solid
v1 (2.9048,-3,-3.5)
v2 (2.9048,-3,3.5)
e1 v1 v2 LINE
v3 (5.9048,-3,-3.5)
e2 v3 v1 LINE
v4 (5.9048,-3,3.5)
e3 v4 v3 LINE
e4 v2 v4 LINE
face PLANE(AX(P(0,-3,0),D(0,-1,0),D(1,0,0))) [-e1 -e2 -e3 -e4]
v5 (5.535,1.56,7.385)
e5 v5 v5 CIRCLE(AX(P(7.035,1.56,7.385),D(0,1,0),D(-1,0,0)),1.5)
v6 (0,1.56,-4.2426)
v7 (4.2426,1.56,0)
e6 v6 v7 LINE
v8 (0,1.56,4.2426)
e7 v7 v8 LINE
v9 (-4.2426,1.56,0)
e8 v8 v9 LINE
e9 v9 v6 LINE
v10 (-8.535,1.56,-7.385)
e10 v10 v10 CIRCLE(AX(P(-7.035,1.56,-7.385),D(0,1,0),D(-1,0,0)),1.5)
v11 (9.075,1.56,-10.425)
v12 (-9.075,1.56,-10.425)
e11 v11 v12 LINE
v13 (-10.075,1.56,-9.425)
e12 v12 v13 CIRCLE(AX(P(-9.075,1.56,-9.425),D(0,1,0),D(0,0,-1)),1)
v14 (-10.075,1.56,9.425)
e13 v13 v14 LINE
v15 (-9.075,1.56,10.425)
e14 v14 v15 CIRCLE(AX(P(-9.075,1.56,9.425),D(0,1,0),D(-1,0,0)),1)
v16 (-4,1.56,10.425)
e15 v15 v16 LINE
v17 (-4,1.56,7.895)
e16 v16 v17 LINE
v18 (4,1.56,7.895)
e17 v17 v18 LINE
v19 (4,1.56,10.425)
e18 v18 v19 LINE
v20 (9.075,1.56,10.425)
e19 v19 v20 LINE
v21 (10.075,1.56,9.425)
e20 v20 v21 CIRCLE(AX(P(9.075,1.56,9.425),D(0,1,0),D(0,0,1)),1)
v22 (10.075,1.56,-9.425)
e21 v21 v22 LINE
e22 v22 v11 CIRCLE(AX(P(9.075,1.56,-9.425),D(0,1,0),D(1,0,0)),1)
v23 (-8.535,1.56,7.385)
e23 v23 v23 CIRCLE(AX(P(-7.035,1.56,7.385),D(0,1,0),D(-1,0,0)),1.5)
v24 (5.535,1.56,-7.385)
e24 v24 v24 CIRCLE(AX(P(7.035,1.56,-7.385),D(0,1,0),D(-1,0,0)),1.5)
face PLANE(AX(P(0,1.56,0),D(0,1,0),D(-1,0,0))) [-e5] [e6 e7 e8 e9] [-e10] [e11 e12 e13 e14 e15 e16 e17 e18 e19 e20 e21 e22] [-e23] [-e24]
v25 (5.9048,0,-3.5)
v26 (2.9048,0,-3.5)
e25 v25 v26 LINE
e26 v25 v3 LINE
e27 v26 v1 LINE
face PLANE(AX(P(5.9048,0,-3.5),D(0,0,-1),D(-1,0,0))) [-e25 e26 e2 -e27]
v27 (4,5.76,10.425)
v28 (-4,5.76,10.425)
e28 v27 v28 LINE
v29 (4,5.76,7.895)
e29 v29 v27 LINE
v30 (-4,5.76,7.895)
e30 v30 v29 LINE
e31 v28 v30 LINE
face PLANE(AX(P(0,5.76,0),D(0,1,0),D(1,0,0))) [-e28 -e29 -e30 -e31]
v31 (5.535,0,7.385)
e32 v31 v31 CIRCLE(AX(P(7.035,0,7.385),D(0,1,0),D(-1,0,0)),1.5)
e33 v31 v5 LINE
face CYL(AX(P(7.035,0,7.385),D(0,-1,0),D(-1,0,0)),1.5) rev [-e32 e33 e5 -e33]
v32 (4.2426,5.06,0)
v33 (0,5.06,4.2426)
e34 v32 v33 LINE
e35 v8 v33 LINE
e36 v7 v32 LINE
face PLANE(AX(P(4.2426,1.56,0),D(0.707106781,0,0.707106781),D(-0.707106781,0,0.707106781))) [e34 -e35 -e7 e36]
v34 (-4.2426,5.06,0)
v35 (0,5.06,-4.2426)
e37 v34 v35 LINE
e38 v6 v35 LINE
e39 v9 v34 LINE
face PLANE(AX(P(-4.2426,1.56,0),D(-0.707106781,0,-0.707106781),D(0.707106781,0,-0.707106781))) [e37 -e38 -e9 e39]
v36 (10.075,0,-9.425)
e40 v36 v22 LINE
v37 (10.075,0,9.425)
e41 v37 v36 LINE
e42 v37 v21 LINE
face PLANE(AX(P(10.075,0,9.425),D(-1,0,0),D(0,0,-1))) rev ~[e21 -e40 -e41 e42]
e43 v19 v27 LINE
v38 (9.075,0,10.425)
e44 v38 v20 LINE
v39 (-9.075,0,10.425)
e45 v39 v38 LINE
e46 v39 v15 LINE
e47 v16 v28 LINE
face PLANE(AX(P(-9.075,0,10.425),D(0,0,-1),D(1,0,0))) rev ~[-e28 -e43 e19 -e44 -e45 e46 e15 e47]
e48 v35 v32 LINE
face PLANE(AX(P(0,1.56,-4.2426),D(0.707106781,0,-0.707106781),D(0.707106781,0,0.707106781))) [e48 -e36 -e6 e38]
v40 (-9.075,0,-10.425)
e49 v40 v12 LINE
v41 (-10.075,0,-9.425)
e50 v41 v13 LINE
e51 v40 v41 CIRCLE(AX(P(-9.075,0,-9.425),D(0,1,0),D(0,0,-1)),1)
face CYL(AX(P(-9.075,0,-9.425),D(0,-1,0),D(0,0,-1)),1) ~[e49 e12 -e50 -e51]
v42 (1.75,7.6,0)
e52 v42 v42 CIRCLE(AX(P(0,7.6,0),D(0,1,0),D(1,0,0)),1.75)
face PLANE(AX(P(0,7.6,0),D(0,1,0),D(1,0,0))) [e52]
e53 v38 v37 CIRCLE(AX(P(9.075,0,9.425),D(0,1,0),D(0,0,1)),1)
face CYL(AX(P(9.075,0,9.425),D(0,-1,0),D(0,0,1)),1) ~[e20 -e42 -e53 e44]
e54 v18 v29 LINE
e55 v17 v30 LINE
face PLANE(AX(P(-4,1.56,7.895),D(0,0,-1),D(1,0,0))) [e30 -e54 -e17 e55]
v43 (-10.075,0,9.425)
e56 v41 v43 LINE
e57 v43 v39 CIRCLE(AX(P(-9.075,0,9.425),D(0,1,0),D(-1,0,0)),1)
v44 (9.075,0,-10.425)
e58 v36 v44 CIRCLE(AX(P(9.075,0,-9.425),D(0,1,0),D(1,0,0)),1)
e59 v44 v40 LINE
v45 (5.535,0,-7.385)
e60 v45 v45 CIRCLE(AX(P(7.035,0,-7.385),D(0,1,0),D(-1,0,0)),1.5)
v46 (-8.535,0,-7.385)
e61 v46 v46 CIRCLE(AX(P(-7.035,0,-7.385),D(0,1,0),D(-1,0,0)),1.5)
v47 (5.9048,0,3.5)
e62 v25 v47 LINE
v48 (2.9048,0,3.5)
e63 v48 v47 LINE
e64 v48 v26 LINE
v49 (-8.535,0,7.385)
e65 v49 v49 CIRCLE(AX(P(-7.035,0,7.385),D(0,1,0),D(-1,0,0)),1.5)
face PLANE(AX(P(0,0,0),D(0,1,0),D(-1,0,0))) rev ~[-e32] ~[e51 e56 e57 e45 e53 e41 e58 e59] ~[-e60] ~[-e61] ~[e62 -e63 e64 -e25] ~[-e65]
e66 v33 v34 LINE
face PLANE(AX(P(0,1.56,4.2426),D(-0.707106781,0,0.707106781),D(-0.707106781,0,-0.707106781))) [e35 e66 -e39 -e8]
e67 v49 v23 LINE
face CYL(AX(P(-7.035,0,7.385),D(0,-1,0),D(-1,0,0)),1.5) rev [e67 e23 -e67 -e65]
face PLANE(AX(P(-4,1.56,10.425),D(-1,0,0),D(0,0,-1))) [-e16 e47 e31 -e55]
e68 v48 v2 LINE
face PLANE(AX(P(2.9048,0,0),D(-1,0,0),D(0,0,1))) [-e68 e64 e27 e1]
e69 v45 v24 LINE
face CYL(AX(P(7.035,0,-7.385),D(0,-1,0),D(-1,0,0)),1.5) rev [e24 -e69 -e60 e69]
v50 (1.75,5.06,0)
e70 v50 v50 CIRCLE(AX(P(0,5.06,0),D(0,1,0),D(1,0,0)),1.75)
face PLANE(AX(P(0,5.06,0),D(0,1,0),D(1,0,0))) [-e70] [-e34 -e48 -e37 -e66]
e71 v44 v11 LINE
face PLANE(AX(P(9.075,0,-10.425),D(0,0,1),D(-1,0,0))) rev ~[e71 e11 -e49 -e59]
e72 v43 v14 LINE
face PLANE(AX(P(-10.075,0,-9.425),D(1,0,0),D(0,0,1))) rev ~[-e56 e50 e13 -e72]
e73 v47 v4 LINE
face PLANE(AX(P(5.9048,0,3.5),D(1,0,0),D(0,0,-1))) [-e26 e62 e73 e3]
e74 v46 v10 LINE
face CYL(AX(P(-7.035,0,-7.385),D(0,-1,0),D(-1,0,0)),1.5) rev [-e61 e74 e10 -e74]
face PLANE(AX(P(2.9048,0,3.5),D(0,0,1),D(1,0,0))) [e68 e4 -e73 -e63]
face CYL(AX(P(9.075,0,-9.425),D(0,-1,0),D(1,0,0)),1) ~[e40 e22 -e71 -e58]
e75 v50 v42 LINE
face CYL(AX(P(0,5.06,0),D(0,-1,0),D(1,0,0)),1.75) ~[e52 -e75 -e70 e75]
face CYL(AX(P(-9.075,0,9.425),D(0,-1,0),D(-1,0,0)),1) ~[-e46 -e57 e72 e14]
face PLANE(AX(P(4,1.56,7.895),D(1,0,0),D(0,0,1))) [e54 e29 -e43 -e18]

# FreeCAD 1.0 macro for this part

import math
import FreeCAD as App
import Part
import Sketcher

V = App.Vector

doc = App.newDocument("Part")
body = doc.addObject("PartDesign::Body", "Body")

sketch1 = doc.addObject("Sketcher::SketchObject", "Sketch")
body.addObject(sketch1)
sketch1.AttachmentSupport = (doc.XZ_Plane, [""])
sketch1.MapMode = "FlatFace"
sketch1.addGeometry(Part.ArcOfCircle(Part.Circle(V(-9.1, 9.4, 0), V(0, 0, 1), 1), math.radians(90), math.radians(180)), False)
sketch1.addGeometry(Part.LineSegment(V(-9.1, 10.4, 0), V(9.1, 10.4, 0)), False)
sketch1.addGeometry(Part.ArcOfCircle(Part.Circle(V(9.1, 9.4, 0), V(0, 0, 1), 1), math.radians(0), math.radians(90)), False)
sketch1.addGeometry(Part.LineSegment(V(10.1, 9.4, 0), V(10.1, -9.4, 0)), False)
sketch1.addGeometry(Part.ArcOfCircle(Part.Circle(V(9.1, -9.4, 0), V(0, 0, 1), 1), math.radians(-90), math.radians(0)), False)
sketch1.addGeometry(Part.LineSegment(V(9.1, -10.4, 0), V(-9.1, -10.4, 0)), False)
sketch1.addGeometry(Part.ArcOfCircle(Part.Circle(V(-9.1, -9.4, 0), V(0, 0, 1), 1), math.radians(180), math.radians(270)), False)
sketch1.addGeometry(Part.LineSegment(V(-10.1, -9.4, 0), V(-10.1, 9.4, 0)), False)
sketch1.addGeometry(Part.Circle(V(7, -7.4, 0), V(0, 0, 1), 1.5), False)
sketch1.addGeometry(Part.Circle(V(-7, -7.4, 0), V(0, 0, 1), 1.5), False)
sketch1.addGeometry(Part.Circle(V(7, 7.4, 0), V(0, 0, 1), 1.5), False)
sketch1.addGeometry(Part.Circle(V(-7, 7.4, 0), V(0, 0, 1), 1.5), False)
sketch1.addConstraint(Sketcher.Constraint("Tangent", 0, 1, 1, 1))
sketch1.addConstraint(Sketcher.Constraint("Tangent", 1, 2, 2, 2))
sketch1.addConstraint(Sketcher.Constraint("Tangent", 2, 1, 3, 1))
sketch1.addConstraint(Sketcher.Constraint("Tangent", 3, 2, 4, 2))
sketch1.addConstraint(Sketcher.Constraint("Tangent", 4, 1, 5, 1))
sketch1.addConstraint(Sketcher.Constraint("Tangent", 5, 2, 6, 2))
sketch1.addConstraint(Sketcher.Constraint("Tangent", 6, 1, 7, 1))
sketch1.addConstraint(Sketcher.Constraint("Tangent", 7, 2, 0, 2))
sketch1.addConstraint(Sketcher.Constraint("Horizontal", 1))
sketch1.addConstraint(Sketcher.Constraint("Vertical", 3))
sketch1.addConstraint(Sketcher.Constraint("Horizontal", 5))
sketch1.addConstraint(Sketcher.Constraint("Vertical", 7))
sketch1.addConstraint(Sketcher.Constraint("Equal", 0, 2))
sketch1.addConstraint(Sketcher.Constraint("Equal", 2, 4))
sketch1.addConstraint(Sketcher.Constraint("Equal", 4, 6))
sketch1.addConstraint(Sketcher.Constraint("Equal", 8, 9))
sketch1.addConstraint(Sketcher.Constraint("Equal", 9, 10))
sketch1.addConstraint(Sketcher.Constraint("Equal", 10, 11))
sketch1.addConstraint(Sketcher.Constraint("Symmetric", 0, 3, 4, 3, -1, 1))
sketch1.addConstraint(Sketcher.Constraint("Symmetric", 9, 3, 10, 3, -1, 1))
sketch1.addConstraint(Sketcher.Constraint("Symmetric", 8, 3, 11, 3, -1, 1))
sketch1.addConstraint(Sketcher.Constraint("Symmetric", 8, 3, 9, 3, -2))
sketch1.addConstraint(Sketcher.Constraint("Diameter", 8, 3.0))
sketch1.addConstraint(Sketcher.Constraint("Radius", 0, 1.0))
sketch1.addConstraint(Sketcher.Constraint("DistanceY", 11, 3, 0, 1, 3.04))
sketch1.addConstraint(Sketcher.Constraint("DistanceX", 10, 3, 2, 1, 3.04))
sketch1.addConstraint(Sketcher.Constraint("DistanceX", 1, 1, 1, 2, 18.15))
sketch1.addConstraint(Sketcher.Constraint("DistanceY", 3, 2, 3, 1, 18.85))
pad1 = doc.addObject("PartDesign::Pad", "Pad")
body.addObject(pad1)
pad1.Profile = sketch1
pad1.Length = 1.56
pad1.Reversed = True

sketch2 = doc.addObject("Sketcher::SketchObject", "Sketch001")
body.addObject(sketch2)
sketch2.AttachmentSupport = (doc.XZ_Plane, [""])
sketch2.MapMode = "FlatFace"
sketch2.AttachmentOffset = App.Placement(V(0, 0, -1.56), App.Rotation())
sketch2.addGeometry(Part.LineSegment(V(0, -4, 0), V(-4, 0, 0)), False)
sketch2.addGeometry(Part.LineSegment(V(-4, 0, 0), V(0, 4, 0)), False)
sketch2.addGeometry(Part.LineSegment(V(0, 4, 0), V(4, 0, 0)), False)
sketch2.addGeometry(Part.LineSegment(V(4, 0, 0), V(0, -4, 0)), False)
sketch2.addConstraint(Sketcher.Constraint("Coincident", 0, 2, 1, 1))
sketch2.addConstraint(Sketcher.Constraint("Coincident", 1, 2, 2, 1))
sketch2.addConstraint(Sketcher.Constraint("Coincident", 2, 2, 3, 1))
sketch2.addConstraint(Sketcher.Constraint("Coincident", 3, 2, 0, 1))
sketch2.addConstraint(Sketcher.Constraint("Symmetric", 0, 2, 2, 2, -1, 1))
sketch2.addConstraint(Sketcher.Constraint("Symmetric", 1, 2, 3, 2, -1, 1))
sketch2.addConstraint(Sketcher.Constraint("PointOnObject", 0, 2, -1))
sketch2.addConstraint(Sketcher.Constraint("PointOnObject", 1, 2, -2))
sketch2.addConstraint(Sketcher.Constraint("Perpendicular", 0, 1))
sketch2.addConstraint(Sketcher.Constraint("Distance", 0, 6.0))
pad2 = doc.addObject("PartDesign::Pad", "Pad001")
body.addObject(pad2)
pad2.Profile = sketch2
pad2.Length = 3.5
pad2.Reversed = True

sketch3 = doc.addObject("Sketcher::SketchObject", "Sketch002")
body.addObject(sketch3)
sketch3.AttachmentSupport = (doc.XZ_Plane, [""])
sketch3.MapMode = "FlatFace"
sketch3.AttachmentOffset = App.Placement(V(0, 0, -1.56), App.Rotation())
sketch3.addGeometry(Part.LineSegment(V(-4, 10.4, 0), V(4, 10.4, 0)), False)
sketch3.addGeometry(Part.LineSegment(V(4, 10.4, 0), V(4, 7.9, 0)), False)
sketch3.addGeometry(Part.LineSegment(V(4, 7.9, 0), V(-4, 7.9, 0)), False)
sketch3.addGeometry(Part.LineSegment(V(-4, 7.9, 0), V(-4, 10.4, 0)), False)
sketch3.addConstraint(Sketcher.Constraint("Coincident", 0, 2, 1, 1))
sketch3.addConstraint(Sketcher.Constraint("Coincident", 1, 2, 2, 1))
sketch3.addConstraint(Sketcher.Constraint("Coincident", 2, 2, 3, 1))
sketch3.addConstraint(Sketcher.Constraint("Coincident", 3, 2, 0, 1))
sketch3.addConstraint(Sketcher.Constraint("Horizontal", 0))
sketch3.addConstraint(Sketcher.Constraint("Vertical", 1))
sketch3.addConstraint(Sketcher.Constraint("Horizontal", 2))
sketch3.addConstraint(Sketcher.Constraint("Vertical", 3))
sketch3.addConstraint(Sketcher.Constraint("DistanceX", 0, 1, 0, 2, 8.0))
sketch3.addConstraint(Sketcher.Constraint("DistanceY", 1, 2, 1, 1, 2.53))
sketch3.addConstraint(Sketcher.Constraint("DistanceX", -1, 1, 0, 2, 4.0))
sketch3.addConstraint(Sketcher.Constraint("DistanceY", -1, 1, 0, 2, 10.425))
pad3 = doc.addObject("PartDesign::Pad", "Pad002")
body.addObject(pad3)
pad3.Profile = sketch3
pad3.Length = 4.2
pad3.Reversed = True

sketch4 = doc.addObject("Sketcher::SketchObject", "Sketch003")
body.addObject(sketch4)
sketch4.AttachmentSupport = (doc.XZ_Plane, [""])
sketch4.MapMode = "FlatFace"
sketch4.addGeometry(Part.LineSegment(V(5.9, 3.5, 0), V(2.9, 3.5, 0)), False)
sketch4.addGeometry(Part.LineSegment(V(2.9, 3.5, 0), V(2.9, -3.5, 0)), False)
sketch4.addGeometry(Part.LineSegment(V(2.9, -3.5, 0), V(5.9, -3.5, 0)), False)
sketch4.addGeometry(Part.LineSegment(V(5.9, -3.5, 0), V(5.9, 3.5, 0)), False)
sketch4.addConstraint(Sketcher.Constraint("Coincident", 0, 2, 1, 1))
sketch4.addConstraint(Sketcher.Constraint("Coincident", 1, 2, 2, 1))
sketch4.addConstraint(Sketcher.Constraint("Coincident", 2, 2, 3, 1))
sketch4.addConstraint(Sketcher.Constraint("Coincident", 3, 2, 0, 1))
sketch4.addConstraint(Sketcher.Constraint("Horizontal", 0))
sketch4.addConstraint(Sketcher.Constraint("Vertical", 1))
sketch4.addConstraint(Sketcher.Constraint("Horizontal", 2))
sketch4.addConstraint(Sketcher.Constraint("Vertical", 3))
sketch4.addConstraint(Sketcher.Constraint("DistanceX", 0, 2, 0, 1, 3.0))
sketch4.addConstraint(Sketcher.Constraint("DistanceY", 1, 2, 1, 1, 7.0))
sketch4.addConstraint(Sketcher.Constraint("DistanceY", -1, 1, 0, 2, 3.5))
sketch4.addConstraint(Sketcher.Constraint("DistanceX", -1, 1, 0, 2, 2.9048))
pad4 = doc.addObject("PartDesign::Pad", "Pad003")
body.addObject(pad4)
pad4.Profile = sketch4
pad4.Length = 3

sketch5 = doc.addObject("Sketcher::SketchObject", "Sketch004")
body.addObject(sketch5)
sketch5.AttachmentSupport = (doc.XZ_Plane, [""])
sketch5.MapMode = "FlatFace"
sketch5.AttachmentOffset = App.Placement(V(0, 0, -5.06), App.Rotation())
sketch5.addGeometry(Part.Circle(V(0, 0, 0), V(0, 0, 1), 1.8), False)
sketch5.addConstraint(Sketcher.Constraint("Coincident", 0, 3, -1, 1))
sketch5.addConstraint(Sketcher.Constraint("Diameter", 0, 3.5))
pad5 = doc.addObject("PartDesign::Pad", "Pad004")
body.addObject(pad5)
pad5.Profile = sketch5
pad5.Length = 2.54
pad5.Reversed = True

doc.recompute()
